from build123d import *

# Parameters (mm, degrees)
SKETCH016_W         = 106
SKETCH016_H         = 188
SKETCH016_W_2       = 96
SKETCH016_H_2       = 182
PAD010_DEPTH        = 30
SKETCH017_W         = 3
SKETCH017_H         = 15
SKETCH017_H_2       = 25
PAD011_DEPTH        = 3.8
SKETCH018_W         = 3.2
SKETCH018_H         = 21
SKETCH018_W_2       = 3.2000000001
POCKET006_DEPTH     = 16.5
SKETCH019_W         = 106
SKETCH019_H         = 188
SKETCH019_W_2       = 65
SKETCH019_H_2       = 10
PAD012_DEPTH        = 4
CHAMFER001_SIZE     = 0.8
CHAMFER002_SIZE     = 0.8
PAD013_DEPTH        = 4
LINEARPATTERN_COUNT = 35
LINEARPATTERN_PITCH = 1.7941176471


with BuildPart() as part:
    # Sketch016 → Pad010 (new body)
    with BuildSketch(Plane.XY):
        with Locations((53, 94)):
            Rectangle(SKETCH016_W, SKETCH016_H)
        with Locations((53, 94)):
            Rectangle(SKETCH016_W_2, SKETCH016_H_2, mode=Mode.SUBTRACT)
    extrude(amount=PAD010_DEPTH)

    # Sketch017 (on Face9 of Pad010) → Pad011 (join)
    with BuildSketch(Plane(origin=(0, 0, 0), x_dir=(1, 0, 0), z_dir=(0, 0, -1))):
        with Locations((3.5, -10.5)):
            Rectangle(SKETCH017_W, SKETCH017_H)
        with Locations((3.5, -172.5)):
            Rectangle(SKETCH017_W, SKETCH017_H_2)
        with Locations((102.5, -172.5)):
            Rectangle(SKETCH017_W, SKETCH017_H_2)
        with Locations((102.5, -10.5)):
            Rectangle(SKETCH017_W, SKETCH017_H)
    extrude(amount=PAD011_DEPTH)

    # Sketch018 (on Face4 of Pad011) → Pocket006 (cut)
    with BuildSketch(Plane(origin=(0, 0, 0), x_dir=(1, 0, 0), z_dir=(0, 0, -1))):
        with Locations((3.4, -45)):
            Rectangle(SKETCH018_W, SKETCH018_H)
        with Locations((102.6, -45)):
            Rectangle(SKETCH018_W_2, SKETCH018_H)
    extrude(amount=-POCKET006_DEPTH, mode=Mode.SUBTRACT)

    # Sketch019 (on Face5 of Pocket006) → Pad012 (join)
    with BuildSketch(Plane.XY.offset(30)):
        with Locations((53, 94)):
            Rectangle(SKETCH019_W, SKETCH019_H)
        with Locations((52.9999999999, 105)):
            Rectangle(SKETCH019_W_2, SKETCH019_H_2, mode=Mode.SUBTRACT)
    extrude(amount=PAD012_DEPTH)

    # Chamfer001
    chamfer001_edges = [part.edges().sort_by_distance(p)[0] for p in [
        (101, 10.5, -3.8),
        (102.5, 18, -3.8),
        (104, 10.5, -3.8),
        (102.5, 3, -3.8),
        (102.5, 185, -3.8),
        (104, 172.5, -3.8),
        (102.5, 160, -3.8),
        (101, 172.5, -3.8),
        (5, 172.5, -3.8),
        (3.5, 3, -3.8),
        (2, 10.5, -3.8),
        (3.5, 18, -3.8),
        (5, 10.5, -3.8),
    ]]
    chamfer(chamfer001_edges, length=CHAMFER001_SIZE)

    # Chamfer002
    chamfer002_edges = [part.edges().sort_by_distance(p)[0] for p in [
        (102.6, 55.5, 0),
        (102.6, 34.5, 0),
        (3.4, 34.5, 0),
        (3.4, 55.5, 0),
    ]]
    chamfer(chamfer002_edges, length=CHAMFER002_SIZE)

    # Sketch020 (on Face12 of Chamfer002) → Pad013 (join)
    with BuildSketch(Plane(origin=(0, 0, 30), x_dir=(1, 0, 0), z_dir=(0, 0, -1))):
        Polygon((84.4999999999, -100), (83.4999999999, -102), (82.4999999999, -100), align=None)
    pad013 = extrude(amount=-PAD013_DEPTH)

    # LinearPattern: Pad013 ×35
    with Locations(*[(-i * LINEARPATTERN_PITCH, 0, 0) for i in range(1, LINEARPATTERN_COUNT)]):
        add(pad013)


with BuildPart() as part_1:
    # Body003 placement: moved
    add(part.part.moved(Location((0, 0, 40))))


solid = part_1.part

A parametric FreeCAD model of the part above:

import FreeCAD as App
import Part
import Sketcher
Q = App.Units.Quantity


def edges_at(feature, points):
    """Names of the edges that pass closest to the given points."""
    edges = feature.Shape.Edges
    near = lambda p: min(range(len(edges)), key=lambda i: edges[i].distToShape(Part.Vertex(*p))[0])
    return sorted({f"Edge{near(p) + 1}" for p in points})


def add_polygon(sketch, points):
    """Adds a closed chain of lines whose ends are joined by coincident constraints."""
    first, n = sketch.GeometryCount, len(points)
    for a, b in zip(points, points[1:] + points[:1]):
        sketch.addGeometry(Part.LineSegment(App.Vector(*a, 0), App.Vector(*b, 0)), False)
    for i in range(n):
        sketch.addConstraint(Sketcher.Constraint("Coincident", first + i, 2, first + (i + 1) % n, 1))

doc = App.newDocument("Part")
body = doc.addObject("PartDesign::Body", "Body")

# Sketch on XY plane
sketch1 = doc.addObject("Sketcher::SketchObject", "Sketch")
body.addObject(sketch1)
sketch1.AttachmentSupport = (doc.XY_Plane, [""])
sketch1.MapMode = "FlatFace"
add_polygon(sketch1, [(0, 188), (0, 0), (106, 0), (106, 188)])  # lines 0-3
add_polygon(sketch1, [(101, 3), (5, 3), (5, 185), (101, 185)])  # lines 4-7
sketch1.addConstraint([
    Sketcher.Constraint("Vertical", 0),
    Sketcher.Constraint("Horizontal", 1),
    Sketcher.Constraint("Vertical", 2),
    Sketcher.Constraint("Horizontal", 3),
    Sketcher.Constraint("Horizontal", 4),
    Sketcher.Constraint("Vertical", 5),
    Sketcher.Constraint("Horizontal", 6),
    Sketcher.Constraint("Vertical", 7),
    Sketcher.Constraint("Coincident", 0, 2, -1, 1),
    Sketcher.Constraint("DistanceX", 1, 1, 1, 2, Q("106 mm")),
    Sketcher.Constraint("DistanceX", 4, 2, 4, 1, Q("96 mm")),
    Sketcher.Constraint("DistanceY", 0, 2, 0, 1, Q("188 mm")),
    Sketcher.Constraint("DistanceY", 5, 1, 5, 2, Q("182 mm")),
    Sketcher.Constraint("DistanceX", -1, 1, 4, 2, Q("5 mm")),
    Sketcher.Constraint("DistanceY", -1, 1, 4, 2, Q("3 mm")),
])
pad1 = doc.addObject("PartDesign::Pad", "Pad")
body.addObject(pad1)
pad1.Profile = sketch1
pad1.Length = 30

# Sketch on XY plane
sketch2 = doc.addObject("Sketcher::SketchObject", "Sketch001")
body.addObject(sketch2)
sketch2.AttachmentSupport = (doc.XY_Plane, [""])
sketch2.MapMode = "FlatFace"
add_polygon(sketch2, [(2, 3), (2, 18), (5, 18), (5, 3)])  # lines 0-3
add_polygon(sketch2, [(2, 160), (2, 185), (5, 185), (5, 160)])  # lines 4-7
add_polygon(sketch2, [(101, 160), (101, 185), (104, 185), (104, 160)])  # lines 8-11
add_polygon(sketch2, [(101, 3), (101, 18), (104, 18), (104, 3)])  # lines 12-15
sketch2.addConstraint([
    Sketcher.Constraint("Vertical", 0),
    Sketcher.Constraint("Horizontal", 1),
    Sketcher.Constraint("Vertical", 2),
    Sketcher.Constraint("Horizontal", 3),
    Sketcher.Constraint("Vertical", 4),
    Sketcher.Constraint("Horizontal", 5),
    Sketcher.Constraint("Vertical", 6),
    Sketcher.Constraint("Horizontal", 7),
    Sketcher.Constraint("Vertical", 8),
    Sketcher.Constraint("Horizontal", 9),
    Sketcher.Constraint("Vertical", 10),
    Sketcher.Constraint("Horizontal", 11),
    Sketcher.Constraint("Vertical", 12),
    Sketcher.Constraint("Horizontal", 13),
    Sketcher.Constraint("Vertical", 14),
    Sketcher.Constraint("Horizontal", 15),
    Sketcher.Constraint("Horizontal", 5, 2, 8, 2),
    Sketcher.Constraint("Horizontal", 7, 2, 10, 2),
    Sketcher.Constraint("Horizontal", 1, 2, 12, 2),
    Sketcher.Constraint("Horizontal", 3, 2, 14, 2),
    Sketcher.Constraint("Vertical", 3, 2, 4, 2),
    Sketcher.Constraint("Vertical", 2, 2, 5, 2),
    Sketcher.Constraint("Vertical", 11, 2, 12, 2),
    Sketcher.Constraint("Vertical", 10, 2, 13, 2),
    Sketcher.Constraint("Equal", 7, 9),
    Sketcher.Constraint("DistanceX", 1, 1, 1, 2, Q("3 mm")),
    Sketcher.Constraint("DistanceY", 0, 1, 0, 2, Q("15 mm")),
    Sketcher.Constraint("DistanceY", 4, 1, 4, 2, Q("25 mm")),
    Sketcher.Constraint("DistanceX", -1, 1, 0, 2, Q("2 mm")),
    Sketcher.Constraint("DistanceY", -1, 1, 0, 2, Q("18 mm")),
    Sketcher.Constraint("DistanceY", -1, 1, 4, 2, Q("185 mm")),
    Sketcher.Constraint("DistanceX", -1, 1, 8, 2, Q("101 mm")),
])
pad2 = doc.addObject("PartDesign::Pad", "Pad001")
body.addObject(pad2)
pad2.Profile = sketch2
pad2.Length = 3.8
pad2.Reversed = True

# Sketch on XY plane
sketch3 = doc.addObject("Sketcher::SketchObject", "Sketch002")
body.addObject(sketch3)
sketch3.AttachmentSupport = (doc.XY_Plane, [""])
sketch3.MapMode = "FlatFace"
add_polygon(sketch3, [(1.8, 34.5), (1.8, 55.5), (5, 55.5), (5, 34.5)])  # lines 0-3
add_polygon(sketch3, [(101, 34.5), (101, 55.5), (104.2, 55.5), (104.2, 34.5)])  # lines 4-7
sketch3.addConstraint([
    Sketcher.Constraint("Vertical", 0),
    Sketcher.Constraint("Horizontal", 1),
    Sketcher.Constraint("Vertical", 2),
    Sketcher.Constraint("Horizontal", 3),
    Sketcher.Constraint("Vertical", 4),
    Sketcher.Constraint("Horizontal", 5),
    Sketcher.Constraint("Vertical", 6),
    Sketcher.Constraint("Horizontal", 7),
    Sketcher.Constraint("Horizontal", 1, 2, 4, 2),
    Sketcher.Constraint("Horizontal", 3, 2, 6, 2),
    Sketcher.Constraint("Equal", 3, 5),
    Sketcher.Constraint("DistanceY", 0, 1, 0, 2, Q("21 mm")),
    Sketcher.Constraint("DistanceX", 1, 1, 1, 2, Q("3.2 mm")),
    Sketcher.Constraint("DistanceX", -1, 1, 1, 2, Q("5 mm")),
    Sketcher.Constraint("DistanceX", -1, 1, 4, 2, Q("101 mm")),
    Sketcher.Constraint("DistanceY", -1, 1, 0, 2, Q("55.5 mm")),
])
pocket1 = doc.addObject("PartDesign::Pocket", "Pocket")
body.addObject(pocket1)
pocket1.Profile = sketch3
pocket1.Length = 16.5
pocket1.Reversed = True

# Sketch on XY plane
sketch4 = doc.addObject("Sketcher::SketchObject", "Sketch003")
body.addObject(sketch4)
sketch4.AttachmentSupport = (doc.XY_Plane, [""])
sketch4.MapMode = "FlatFace"
sketch4.AttachmentOffset = App.Placement(App.Vector(0, 0, 30), App.Rotation())
add_polygon(sketch4, [(0, 188), (0, 0), (106, 0), (106, 188)])  # lines 0-3
add_polygon(sketch4, [(86, 100), (20, 100), (20, 110), (86, 110)])  # lines 4-7
sketch4.addConstraint([
    Sketcher.Constraint("Vertical", 0),
    Sketcher.Constraint("Horizontal", 1),
    Sketcher.Constraint("Vertical", 2),
    Sketcher.Constraint("Horizontal", 3),
    Sketcher.Constraint("Horizontal", 4),
    Sketcher.Constraint("Vertical", 5),
    Sketcher.Constraint("Horizontal", 6),
    Sketcher.Constraint("Vertical", 7),
    Sketcher.Constraint("Coincident", 0, 2, -1, 1),
    Sketcher.Constraint("DistanceX", 1, 1, 1, 2, Q("106 mm")),
    Sketcher.Constraint("DistanceX", 4, 2, 4, 1, Q("65 mm")),
    Sketcher.Constraint("DistanceY", 0, 2, 0, 1, Q("188 mm")),
    Sketcher.Constraint("DistanceY", 5, 1, 5, 2, Q("10 mm")),
    Sketcher.Constraint("DistanceY", -1, 1, 4, 2, Q("100 mm")),
    Sketcher.Constraint("DistanceX", -1, 1, 4, 2, Q("20.5 mm")),
])
pad3 = doc.addObject("PartDesign::Pad", "Pad002")
body.addObject(pad3)
pad3.Profile = sketch4
pad3.Length = 4
doc.recompute()

chamfer = doc.addObject("PartDesign::Chamfer", "Chamfer")
body.addObject(chamfer)
chamfer.Base = (pad3, edges_at(pad3, [
    (101, 10.5, -3.8),
    (102.5, 18, -3.8),
    (104, 10.5, -3.8),
    (102.5, 3, -3.8),
    (102.5, 185, -3.8),
    (104, 172.5, -3.8),
    (102.5, 160, -3.8),
    (101, 172.5, -3.8),
    (5, 172.5, -3.8),
    (3.5, 3, -3.8),
    (2, 10.5, -3.8),
    (3.5, 18, -3.8),
    (5, 10.5, -3.8),
]))
chamfer.Size = 0.8
doc.recompute()

chamfer2 = doc.addObject("PartDesign::Chamfer", "Chamfer001")
body.addObject(chamfer2)
chamfer2.Base = (chamfer, edges_at(chamfer, [
    (102.6, 55.5, 0),
    (102.6, 34.5, 0),
    (3.4, 34.5, 0),
    (3.4, 55.5, 0),
]))
chamfer2.Size = 0.8

# Sketch on XY plane
sketch5 = doc.addObject("Sketcher::SketchObject", "Sketch004")
body.addObject(sketch5)
sketch5.AttachmentSupport = (doc.XY_Plane, [""])
sketch5.MapMode = "FlatFace"
sketch5.AttachmentOffset = App.Placement(App.Vector(0, 0, 30), App.Rotation())
add_polygon(sketch5, [(83.5, 102), (84.5, 100), (82.5, 100)])  # lines 0-2
sketch5.addConstraint([
    Sketcher.Constraint("Horizontal", 1),
    Sketcher.Constraint("Equal", 0, 2),
    Sketcher.Constraint("DistanceX", 1, 2, 1, 1, Q("2 mm")),
    Sketcher.Constraint("DistanceY", -1, 1, 0, 2, Q("100 mm")),
    Sketcher.Constraint("DistanceY", -1, 1, 2, 2, Q("102 mm")),
    Sketcher.Constraint("DistanceX", -1, 1, 0, 2, Q("84.5 mm")),
])
pad4 = doc.addObject("PartDesign::Pad", "Pad003")
body.addObject(pad4)
pad4.Profile = sketch5
pad4.Length = 4
doc.recompute()

linearpattern = doc.addObject("PartDesign::LinearPattern", "LinearPattern")
body.addObject(linearpattern)
linearpattern.Originals = [pad4]
linearpattern.Direction = (doc.X_Axis, [""])
linearpattern.Mode = "offset"
linearpattern.Offset = 1.794118
linearpattern.Occurrences = 35
linearpattern.Reversed = True
body.Tip = linearpattern
body2 = doc.addObject("PartDesign::Body", "Body001")
doc.recompute()

body.Placement = App.Placement(App.Vector(0, 0, 40), App.Rotation(App.Vector(0, 0, 1), 0))
boolean = doc.addObject("PartDesign::Boolean", "Boolean")
body2.addObject(boolean)
boolean.Type = "Fuse"
boolean.addObjects([body])

doc.recompute()
